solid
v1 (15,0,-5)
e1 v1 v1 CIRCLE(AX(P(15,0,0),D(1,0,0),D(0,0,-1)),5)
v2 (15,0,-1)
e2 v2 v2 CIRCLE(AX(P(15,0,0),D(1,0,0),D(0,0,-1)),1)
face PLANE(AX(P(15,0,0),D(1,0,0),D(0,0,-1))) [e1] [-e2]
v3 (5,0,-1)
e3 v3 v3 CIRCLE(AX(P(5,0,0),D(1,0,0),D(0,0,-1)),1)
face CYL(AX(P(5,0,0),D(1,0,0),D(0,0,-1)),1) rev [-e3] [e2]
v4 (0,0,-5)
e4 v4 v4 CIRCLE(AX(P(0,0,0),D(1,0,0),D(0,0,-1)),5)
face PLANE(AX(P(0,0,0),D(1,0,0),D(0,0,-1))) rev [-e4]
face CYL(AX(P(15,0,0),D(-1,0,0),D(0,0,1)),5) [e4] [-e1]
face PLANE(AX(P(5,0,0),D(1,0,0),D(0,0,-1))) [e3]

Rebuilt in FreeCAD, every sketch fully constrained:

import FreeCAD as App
import Part
import Sketcher

doc = App.newDocument("Part")
body = doc.addObject("PartDesign::Body", "Body")

# Sketch on YZ plane
sketch1 = body.newObject("Sketcher::SketchObject", "Sketch")
sketch1.AttachmentSupport = (doc.getObject("YZ_Plane"), [""])
sketch1.MapMode = "FlatFace"
sketch1.addGeometry(Part.Circle(App.Vector(0, 0, 0), App.Vector(0, 0, 1), 5), False)
sketch1.addConstraint(Sketcher.Constraint("Coincident", 0, 3, -1, 1))
sketch1.addConstraint(Sketcher.Constraint("Diameter", 0, 10.0))
pad1 = body.newObject("PartDesign::Pad", "Pad")
pad1.Profile = sketch1
pad1.Length = 15

# Sketch on YZ plane
sketch2 = body.newObject("Sketcher::SketchObject", "Sketch001")
sketch2.AttachmentSupport = (doc.getObject("YZ_Plane"), [""])
sketch2.MapMode = "FlatFace"
sketch2.AttachmentOffset = App.Placement(App.Vector(0, 0, 15), App.Rotation())
sketch2.addGeometry(Part.Circle(App.Vector(0, 0, 0), App.Vector(0, 0, 1), 1), False)
sketch2.addConstraint(Sketcher.Constraint("Coincident", 0, 3, -1, 1))
sketch2.addConstraint(Sketcher.Constraint("Diameter", 0, 2.0))
pocket1 = body.newObject("PartDesign::Pocket", "Pocket")
pocket1.Profile = sketch2
pocket1.Length = 10

doc.recompute()
